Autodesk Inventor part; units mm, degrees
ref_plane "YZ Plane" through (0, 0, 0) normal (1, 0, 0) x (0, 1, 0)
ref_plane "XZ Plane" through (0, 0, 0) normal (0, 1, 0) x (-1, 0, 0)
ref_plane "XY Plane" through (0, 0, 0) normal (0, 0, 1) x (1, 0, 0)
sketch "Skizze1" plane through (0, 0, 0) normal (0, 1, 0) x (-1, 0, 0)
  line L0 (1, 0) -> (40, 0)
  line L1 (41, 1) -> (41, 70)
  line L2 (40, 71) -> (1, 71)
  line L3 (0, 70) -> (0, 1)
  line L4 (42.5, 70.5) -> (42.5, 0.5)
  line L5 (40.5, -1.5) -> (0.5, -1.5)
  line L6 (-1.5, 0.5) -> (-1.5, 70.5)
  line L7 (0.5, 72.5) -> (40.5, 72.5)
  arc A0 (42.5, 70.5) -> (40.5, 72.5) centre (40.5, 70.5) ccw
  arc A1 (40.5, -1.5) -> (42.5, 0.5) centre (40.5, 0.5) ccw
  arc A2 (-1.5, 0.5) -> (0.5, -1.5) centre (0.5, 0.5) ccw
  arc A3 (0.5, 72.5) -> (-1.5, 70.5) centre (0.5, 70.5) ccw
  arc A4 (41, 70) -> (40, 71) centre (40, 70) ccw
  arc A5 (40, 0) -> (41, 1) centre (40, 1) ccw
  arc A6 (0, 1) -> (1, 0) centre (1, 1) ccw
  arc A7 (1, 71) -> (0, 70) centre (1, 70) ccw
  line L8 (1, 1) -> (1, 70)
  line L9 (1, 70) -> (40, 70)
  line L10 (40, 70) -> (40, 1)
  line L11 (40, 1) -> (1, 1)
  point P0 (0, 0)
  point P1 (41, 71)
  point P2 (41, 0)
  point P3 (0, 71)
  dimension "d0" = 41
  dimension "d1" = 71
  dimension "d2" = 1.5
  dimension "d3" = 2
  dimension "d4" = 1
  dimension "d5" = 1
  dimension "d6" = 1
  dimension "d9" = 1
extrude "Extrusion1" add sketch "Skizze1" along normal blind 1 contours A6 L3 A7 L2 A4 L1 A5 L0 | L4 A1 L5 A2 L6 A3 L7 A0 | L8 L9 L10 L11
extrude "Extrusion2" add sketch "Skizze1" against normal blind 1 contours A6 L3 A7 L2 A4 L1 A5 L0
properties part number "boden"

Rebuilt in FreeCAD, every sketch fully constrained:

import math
import FreeCAD as App
import Part
import Sketcher

V = App.Vector
Q = App.Units.Quantity


def add_polygon(sketch, points):
    """Adds a closed chain of lines whose ends are joined by coincident constraints."""
    first, n = sketch.GeometryCount, len(points)
    for a, b in zip(points, points[1:] + points[:1]):
        sketch.addGeometry(Part.LineSegment(App.Vector(*a, 0), App.Vector(*b, 0)), False)
    for i in range(n):
        sketch.addConstraint(Sketcher.Constraint("Coincident", first + i, 2, first + (i + 1) % n, 1))

doc = App.newDocument("Part")
body = doc.addObject("PartDesign::Body", "Body")

sketch1 = body.newObject("Sketcher::SketchObject", "Sketch")
sketch1.AttachmentSupport = (doc.getObject("XZ_Plane"), [""])
sketch1.MapMode = "FlatFace"
sketch1.addGeometry(Part.LineSegment(V(-42.5, 0.5, 0), V(-42.5, 70.5, 0)), False)
sketch1.addGeometry(Part.ArcOfCircle(Part.Circle(V(-40.5, 70.5, 0), V(0, 0, 1), 2), math.radians(90), math.radians(180)), False)
sketch1.addGeometry(Part.LineSegment(V(-40.5, 72.5, 0), V(-0.5, 72.5, 0)), False)
sketch1.addGeometry(Part.ArcOfCircle(Part.Circle(V(-0.5, 70.5, 0), V(0, 0, 1), 2), math.radians(0), math.radians(90)), False)
sketch1.addGeometry(Part.LineSegment(V(1.5, 70.5, 0), V(1.5, 0.5, 0)), False)
sketch1.addGeometry(Part.ArcOfCircle(Part.Circle(V(-0.5, 0.5, 0), V(0, 0, 1), 2), math.radians(-90), math.radians(0)), False)
sketch1.addGeometry(Part.LineSegment(V(-0.5, -1.5, 0), V(-40.5, -1.5, 0)), False)
sketch1.addGeometry(Part.ArcOfCircle(Part.Circle(V(-40.5, 0.5, 0), V(0, 0, 1), 2), math.radians(180), math.radians(270)), False)
sketch1.addConstraint(Sketcher.Constraint("Tangent", 0, 2, 1, 2))
sketch1.addConstraint(Sketcher.Constraint("Tangent", 1, 1, 2, 1))
sketch1.addConstraint(Sketcher.Constraint("Tangent", 2, 2, 3, 2))
sketch1.addConstraint(Sketcher.Constraint("Tangent", 3, 1, 4, 1))
sketch1.addConstraint(Sketcher.Constraint("Tangent", 4, 2, 5, 2))
sketch1.addConstraint(Sketcher.Constraint("Tangent", 5, 1, 6, 1))
sketch1.addConstraint(Sketcher.Constraint("Tangent", 6, 2, 7, 2))
sketch1.addConstraint(Sketcher.Constraint("Tangent", 7, 1, 0, 1))
sketch1.addConstraint(Sketcher.Constraint("Vertical", 0))
sketch1.addConstraint(Sketcher.Constraint("Horizontal", 2))
sketch1.addConstraint(Sketcher.Constraint("Vertical", 4))
sketch1.addConstraint(Sketcher.Constraint("Horizontal", 6))
sketch1.addConstraint(Sketcher.Constraint("Equal", 1, 3))
sketch1.addConstraint(Sketcher.Constraint("Equal", 3, 5))
sketch1.addConstraint(Sketcher.Constraint("Equal", 5, 7))
sketch1.addConstraint(Sketcher.Constraint("Radius", 1, Q("2 mm")))
sketch1.addConstraint(Sketcher.Constraint("DistanceX", -1, 1, 3, 1, Q("1.5 mm")))
sketch1.addConstraint(Sketcher.Constraint("DistanceY", 5, 1, -1, 1, Q("1.5 mm")))
sketch1.addConstraint(Sketcher.Constraint("DistanceX", 2, 1, 2, 2, Q("40 mm")))
sketch1.addConstraint(Sketcher.Constraint("DistanceY", 0, 1, 0, 2, Q("70 mm")))
pad1 = body.newObject("PartDesign::Pad", "Pad")
pad1.Profile = sketch1
pad1.Length = 1
pad1.Reversed = True

sketch2 = body.newObject("Sketcher::SketchObject", "Sketch001")
sketch2.AttachmentSupport = (doc.getObject("XZ_Plane"), [""])
sketch2.MapMode = "FlatFace"
sketch2.addGeometry(Part.ArcOfCircle(Part.Circle(V(-1, 1, 0), V(0, 0, 1), 1), math.radians(-90), math.radians(0)), False)
sketch2.addGeometry(Part.LineSegment(V(-1, 0, 0), V(-40, 0, 0)), False)
sketch2.addGeometry(Part.ArcOfCircle(Part.Circle(V(-40, 1, 0), V(0, 0, 1), 1), math.radians(180), math.radians(270)), False)
sketch2.addGeometry(Part.LineSegment(V(-41, 1, 0), V(-41, 70, 0)), False)
sketch2.addGeometry(Part.ArcOfCircle(Part.Circle(V(-40, 70, 0), V(0, 0, 1), 1), math.radians(90), math.radians(180)), False)
sketch2.addGeometry(Part.LineSegment(V(-40, 71, 0), V(-1, 71, 0)), False)
sketch2.addGeometry(Part.ArcOfCircle(Part.Circle(V(-1, 70, 0), V(0, 0, 1), 1), math.radians(0), math.radians(90)), False)
sketch2.addGeometry(Part.LineSegment(V(0, 70, 0), V(0, 1, 0)), False)
add_polygon(sketch2, [(-40, 1), (-1, 1), (-1, 70), (-40, 70)])
sketch2.addConstraint(Sketcher.Constraint("Tangent", 0, 1, 1, 1))
sketch2.addConstraint(Sketcher.Constraint("Tangent", 1, 2, 2, 2))
sketch2.addConstraint(Sketcher.Constraint("Tangent", 2, 1, 3, 1))
sketch2.addConstraint(Sketcher.Constraint("Tangent", 3, 2, 4, 2))
sketch2.addConstraint(Sketcher.Constraint("Tangent", 4, 1, 5, 1))
sketch2.addConstraint(Sketcher.Constraint("Tangent", 5, 2, 6, 2))
sketch2.addConstraint(Sketcher.Constraint("Tangent", 6, 1, 7, 1))
sketch2.addConstraint(Sketcher.Constraint("Tangent", 7, 2, 0, 2))
sketch2.addConstraint(Sketcher.Constraint("Horizontal", 1))
sketch2.addConstraint(Sketcher.Constraint("Vertical", 3))
sketch2.addConstraint(Sketcher.Constraint("Horizontal", 5))
sketch2.addConstraint(Sketcher.Constraint("Vertical", 7))
sketch2.addConstraint(Sketcher.Constraint("Horizontal", 8))
sketch2.addConstraint(Sketcher.Constraint("Vertical", 9))
sketch2.addConstraint(Sketcher.Constraint("Horizontal", 10))
sketch2.addConstraint(Sketcher.Constraint("Vertical", 11))
sketch2.addConstraint(Sketcher.Constraint("Coincident", 8, 2, 0, 3))
sketch2.addConstraint(Sketcher.Constraint("Coincident", 9, 2, 6, 3))
sketch2.addConstraint(Sketcher.Constraint("Coincident", 10, 2, 4, 3))
sketch2.addConstraint(Sketcher.Constraint("Equal", 0, 2))
sketch2.addConstraint(Sketcher.Constraint("PointOnObject", 0, 1, -1))
sketch2.addConstraint(Sketcher.Constraint("PointOnObject", 6, 1, -2))
sketch2.addConstraint(Sketcher.Constraint("Radius", 0, Q("1 mm")))
sketch2.addConstraint(Sketcher.Constraint("DistanceX", 2, 1, -1, 1, Q("41 mm")))
sketch2.addConstraint(Sketcher.Constraint("DistanceY", -1, 1, 4, 1, Q("71 mm")))
pad2 = body.newObject("PartDesign::Pad", "Pad001")
pad2.Profile = sketch2
pad2.Length = 1

doc.recompute()
